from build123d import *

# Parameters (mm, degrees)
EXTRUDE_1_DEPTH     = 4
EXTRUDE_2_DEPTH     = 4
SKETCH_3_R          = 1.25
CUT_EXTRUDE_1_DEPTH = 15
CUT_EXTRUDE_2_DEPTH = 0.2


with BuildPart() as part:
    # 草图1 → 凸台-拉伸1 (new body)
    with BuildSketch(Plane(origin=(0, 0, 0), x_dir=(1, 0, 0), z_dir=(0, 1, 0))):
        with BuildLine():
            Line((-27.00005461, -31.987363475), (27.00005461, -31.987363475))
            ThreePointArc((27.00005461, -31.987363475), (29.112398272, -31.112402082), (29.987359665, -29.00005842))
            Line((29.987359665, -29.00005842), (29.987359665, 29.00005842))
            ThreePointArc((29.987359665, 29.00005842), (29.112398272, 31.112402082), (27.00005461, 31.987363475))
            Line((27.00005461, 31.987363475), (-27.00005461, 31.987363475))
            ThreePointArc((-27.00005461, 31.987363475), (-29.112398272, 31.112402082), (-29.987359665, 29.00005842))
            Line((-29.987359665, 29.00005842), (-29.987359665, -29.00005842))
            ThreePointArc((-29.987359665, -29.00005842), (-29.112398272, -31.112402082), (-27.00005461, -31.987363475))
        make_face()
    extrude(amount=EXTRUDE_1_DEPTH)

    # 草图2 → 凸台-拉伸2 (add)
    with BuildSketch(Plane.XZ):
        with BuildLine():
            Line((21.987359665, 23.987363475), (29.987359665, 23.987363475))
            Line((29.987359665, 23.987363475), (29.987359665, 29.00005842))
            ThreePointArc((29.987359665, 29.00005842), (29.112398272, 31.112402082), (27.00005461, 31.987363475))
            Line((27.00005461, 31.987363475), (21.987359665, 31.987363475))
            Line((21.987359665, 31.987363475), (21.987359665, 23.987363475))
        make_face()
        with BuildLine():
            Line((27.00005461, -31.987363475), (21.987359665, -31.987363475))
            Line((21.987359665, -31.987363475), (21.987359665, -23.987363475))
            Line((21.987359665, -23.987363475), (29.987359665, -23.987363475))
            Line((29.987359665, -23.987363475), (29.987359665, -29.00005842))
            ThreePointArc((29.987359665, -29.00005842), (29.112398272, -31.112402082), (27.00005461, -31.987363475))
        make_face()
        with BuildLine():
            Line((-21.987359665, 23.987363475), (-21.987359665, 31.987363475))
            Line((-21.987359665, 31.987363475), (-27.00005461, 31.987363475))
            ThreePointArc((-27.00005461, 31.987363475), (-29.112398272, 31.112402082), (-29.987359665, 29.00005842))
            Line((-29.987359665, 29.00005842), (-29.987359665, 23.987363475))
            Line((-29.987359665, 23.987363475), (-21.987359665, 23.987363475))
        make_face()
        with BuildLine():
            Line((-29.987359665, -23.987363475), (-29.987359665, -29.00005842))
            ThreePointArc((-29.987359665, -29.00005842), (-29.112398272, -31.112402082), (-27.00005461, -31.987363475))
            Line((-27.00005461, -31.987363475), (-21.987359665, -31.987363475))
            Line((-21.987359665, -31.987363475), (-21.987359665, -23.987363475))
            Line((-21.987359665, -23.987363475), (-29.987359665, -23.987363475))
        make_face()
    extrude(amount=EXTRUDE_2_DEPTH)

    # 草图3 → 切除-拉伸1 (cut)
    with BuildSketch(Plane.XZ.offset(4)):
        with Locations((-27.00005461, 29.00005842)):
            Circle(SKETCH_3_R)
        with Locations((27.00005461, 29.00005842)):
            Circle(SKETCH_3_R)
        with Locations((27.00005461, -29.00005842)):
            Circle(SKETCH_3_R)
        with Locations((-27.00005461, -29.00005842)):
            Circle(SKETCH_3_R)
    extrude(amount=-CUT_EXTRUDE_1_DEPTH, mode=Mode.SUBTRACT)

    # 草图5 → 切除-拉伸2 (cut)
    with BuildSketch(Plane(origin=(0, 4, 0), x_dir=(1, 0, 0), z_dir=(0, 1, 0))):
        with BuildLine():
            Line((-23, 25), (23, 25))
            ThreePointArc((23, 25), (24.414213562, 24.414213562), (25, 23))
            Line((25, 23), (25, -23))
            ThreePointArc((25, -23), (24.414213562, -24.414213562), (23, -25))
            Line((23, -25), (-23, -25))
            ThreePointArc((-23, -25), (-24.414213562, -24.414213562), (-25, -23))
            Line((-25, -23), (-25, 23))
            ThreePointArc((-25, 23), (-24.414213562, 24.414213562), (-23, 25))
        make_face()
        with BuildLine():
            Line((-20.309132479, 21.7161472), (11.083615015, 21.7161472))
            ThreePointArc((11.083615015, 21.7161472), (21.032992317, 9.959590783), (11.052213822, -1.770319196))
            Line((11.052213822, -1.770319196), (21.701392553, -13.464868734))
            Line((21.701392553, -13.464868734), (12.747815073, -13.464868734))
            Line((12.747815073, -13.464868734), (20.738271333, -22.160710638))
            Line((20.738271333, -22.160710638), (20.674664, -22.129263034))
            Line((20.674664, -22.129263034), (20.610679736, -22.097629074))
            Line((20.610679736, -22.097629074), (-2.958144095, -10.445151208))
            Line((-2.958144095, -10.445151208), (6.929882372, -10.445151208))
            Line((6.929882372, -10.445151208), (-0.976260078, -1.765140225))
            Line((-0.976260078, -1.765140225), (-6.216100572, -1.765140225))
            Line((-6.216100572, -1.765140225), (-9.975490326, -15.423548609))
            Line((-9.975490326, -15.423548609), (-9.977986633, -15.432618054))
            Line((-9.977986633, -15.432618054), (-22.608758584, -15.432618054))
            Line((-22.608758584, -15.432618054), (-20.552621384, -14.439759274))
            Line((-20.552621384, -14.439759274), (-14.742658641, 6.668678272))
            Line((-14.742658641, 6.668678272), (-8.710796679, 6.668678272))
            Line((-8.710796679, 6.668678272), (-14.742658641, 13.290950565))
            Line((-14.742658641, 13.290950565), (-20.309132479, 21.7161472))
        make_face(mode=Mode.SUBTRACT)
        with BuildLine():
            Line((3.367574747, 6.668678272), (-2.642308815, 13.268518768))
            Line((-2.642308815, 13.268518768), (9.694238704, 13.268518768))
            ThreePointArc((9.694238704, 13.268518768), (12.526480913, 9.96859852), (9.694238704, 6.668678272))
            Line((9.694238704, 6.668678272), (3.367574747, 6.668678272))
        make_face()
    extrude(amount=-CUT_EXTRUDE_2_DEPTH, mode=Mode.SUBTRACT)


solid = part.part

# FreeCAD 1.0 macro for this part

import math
import FreeCAD as App
import Part
import Sketcher
from FreeCAD import Vector

doc = App.newDocument("Part")
body = doc.addObject("PartDesign::Body", "Body")

sketch1 = doc.addObject("Sketcher::SketchObject", "Sketch")
body.addObject(sketch1)
sketch1.AttachmentSupport = (doc.XZ_Plane, [""])
sketch1.MapMode = "FlatFace"
sketch1.addGeometry([
    Part.LineSegment(Vector(-27.000055, 31.987363, 0), Vector(27.000055, 31.987363, 0)),
    Part.ArcOfCircle(Part.Circle(Vector(27.000055, 29.000058, 0), Vector(0, 0, 1), 2.987305), math.radians(0), math.radians(90)),
    Part.LineSegment(Vector(29.98736, 29.000058, 0), Vector(29.98736, -29.000058, 0)),
    Part.ArcOfCircle(Part.Circle(Vector(27.000055, -29.000058, 0), Vector(0, 0, 1), 2.987305), math.radians(-90), math.radians(0)),
    Part.LineSegment(Vector(27.000055, -31.987363, 0), Vector(-27.000055, -31.987363, 0)),
    Part.ArcOfCircle(Part.Circle(Vector(-27.000055, -29.000058, 0), Vector(0, 0, 1), 2.987305), math.radians(180), math.radians(270)),
    Part.LineSegment(Vector(-29.98736, -29.000058, 0), Vector(-29.98736, 29.000058, 0)),
    Part.ArcOfCircle(Part.Circle(Vector(-27.000055, 29.000058, 0), Vector(0, 0, 1), 2.987305), math.radians(90), math.radians(180)),
], False)
sketch1.addConstraint([
    Sketcher.Constraint("Tangent", 0, 2, 1, 2),
    Sketcher.Constraint("Tangent", 1, 1, 2, 1),
    Sketcher.Constraint("Tangent", 2, 2, 3, 2),
    Sketcher.Constraint("Tangent", 3, 1, 4, 1),
    Sketcher.Constraint("Tangent", 4, 2, 5, 2),
    Sketcher.Constraint("Tangent", 5, 1, 6, 1),
    Sketcher.Constraint("Tangent", 6, 2, 7, 2),
    Sketcher.Constraint("Tangent", 7, 1, 0, 1),
    Sketcher.Constraint("Horizontal", 0),
    Sketcher.Constraint("Vertical", 2),
    Sketcher.Constraint("Horizontal", 4),
    Sketcher.Constraint("Vertical", 6),
    Sketcher.Constraint("Equal", 1, 3),
    Sketcher.Constraint("Equal", 3, 5),
    Sketcher.Constraint("Equal", 5, 7),
    Sketcher.Constraint("Symmetric", 1, 3, 5, 3, -1, 1),
    Sketcher.Constraint("Radius", 1, 2.987305),
    Sketcher.Constraint("DistanceX", 0, 1, 0, 2, 54.000109),
    Sketcher.Constraint("DistanceY", 2, 2, 2, 1, 58.000117),
])
pad1 = doc.addObject("PartDesign::Pad", "Pad")
body.addObject(pad1)
pad1.Profile = sketch1
pad1.Length = 4
pad1.Reversed = True

sketch2 = doc.addObject("Sketcher::SketchObject", "Sketch001")
body.addObject(sketch2)
sketch2.AttachmentSupport = (doc.XZ_Plane, [""])
sketch2.MapMode = "FlatFace"
sketch2.addGeometry([
    Part.LineSegment(Vector(21.98736, 23.987363, 0), Vector(29.98736, 23.987363, 0)),
    Part.LineSegment(Vector(29.98736, 23.987363, 0), Vector(29.98736, 29.000058, 0)),
    Part.ArcOfCircle(Part.Circle(Vector(27.000055, 29.000058, 0), Vector(0, 0, 1), 2.987305), math.radians(0), math.radians(90)),
    Part.LineSegment(Vector(27.000055, 31.987363, 0), Vector(21.98736, 31.987363, 0)),
    Part.LineSegment(Vector(21.98736, 31.987363, 0), Vector(21.98736, 23.987363, 0)),
    Part.LineSegment(Vector(21.98736, -31.987363, 0), Vector(27.000055, -31.987363, 0)),
    Part.ArcOfCircle(Part.Circle(Vector(27.000055, -29.000058, 0), Vector(0, 0, 1), 2.987305), math.radians(-90), math.radians(0)),
    Part.LineSegment(Vector(29.98736, -29.000058, 0), Vector(29.98736, -23.987363, 0)),
    Part.LineSegment(Vector(29.98736, -23.987363, 0), Vector(21.98736, -23.987363, 0)),
    Part.LineSegment(Vector(21.98736, -23.987363, 0), Vector(21.98736, -31.987363, 0)),
    Part.LineSegment(Vector(-21.98736, 23.987363, 0), Vector(-21.98736, 31.987363, 0)),
    Part.LineSegment(Vector(-21.98736, 31.987363, 0), Vector(-27.000055, 31.987363, 0)),
    Part.ArcOfCircle(Part.Circle(Vector(-27.000055, 29.000058, 0), Vector(0, 0, 1), 2.987305), math.radians(90), math.radians(180)),
    Part.LineSegment(Vector(-29.98736, 29.000058, 0), Vector(-29.98736, 23.987363, 0)),
    Part.LineSegment(Vector(-29.98736, 23.987363, 0), Vector(-21.98736, 23.987363, 0)),
    Part.LineSegment(Vector(-29.98736, -23.987363, 0), Vector(-29.98736, -29.000058, 0)),
    Part.ArcOfCircle(Part.Circle(Vector(-27.000055, -29.000058, 0), Vector(0, 0, 1), 2.987305), math.radians(180), math.radians(270)),
    Part.LineSegment(Vector(-27.000055, -31.987363, 0), Vector(-21.98736, -31.987363, 0)),
    Part.LineSegment(Vector(-21.98736, -31.987363, 0), Vector(-21.98736, -23.987363, 0)),
    Part.LineSegment(Vector(-21.98736, -23.987363, 0), Vector(-29.98736, -23.987363, 0)),
], False)
sketch2.addConstraint([
    Sketcher.Constraint("Coincident", 0, 2, 1, 1),
    Sketcher.Constraint("Tangent", 1, 2, 2, 1),
    Sketcher.Constraint("Tangent", 2, 2, 3, 1),
    Sketcher.Constraint("Coincident", 3, 2, 4, 1),
    Sketcher.Constraint("Coincident", 4, 2, 0, 1),
    Sketcher.Constraint("Tangent", 5, 2, 6, 1),
    Sketcher.Constraint("Tangent", 6, 2, 7, 1),
    Sketcher.Constraint("Coincident", 7, 2, 8, 1),
    Sketcher.Constraint("Coincident", 8, 2, 9, 1),
    Sketcher.Constraint("Coincident", 9, 2, 5, 1),
    Sketcher.Constraint("Coincident", 10, 2, 11, 1),
    Sketcher.Constraint("Tangent", 11, 2, 12, 1),
    Sketcher.Constraint("Tangent", 12, 2, 13, 1),
    Sketcher.Constraint("Coincident", 13, 2, 14, 1),
    Sketcher.Constraint("Coincident", 14, 2, 10, 1),
    Sketcher.Constraint("Tangent", 15, 2, 16, 1),
    Sketcher.Constraint("Tangent", 16, 2, 17, 1),
    Sketcher.Constraint("Coincident", 17, 2, 18, 1),
    Sketcher.Constraint("Coincident", 18, 2, 19, 1),
    Sketcher.Constraint("Coincident", 19, 2, 15, 1),
    Sketcher.Constraint("Horizontal", 0),
    Sketcher.Constraint("Vertical", 1),
    Sketcher.Constraint("Horizontal", 3),
    Sketcher.Constraint("Vertical", 4),
    Sketcher.Constraint("Horizontal", 5),
    Sketcher.Constraint("Vertical", 7),
    Sketcher.Constraint("Horizontal", 8),
    Sketcher.Constraint("Vertical", 9),
    Sketcher.Constraint("Vertical", 10),
    Sketcher.Constraint("Horizontal", 11),
    Sketcher.Constraint("Vertical", 13),
    Sketcher.Constraint("Horizontal", 14),
    Sketcher.Constraint("Vertical", 15),
    Sketcher.Constraint("Horizontal", 17),
    Sketcher.Constraint("Vertical", 18),
    Sketcher.Constraint("Horizontal", 19),
    Sketcher.Constraint("Equal", 2, 6),
    Sketcher.Constraint("Equal", 6, 12),
    Sketcher.Constraint("Equal", 12, 16),
    Sketcher.Constraint("Symmetric", 6, 3, 12, 3, -1, 1),
    Sketcher.Constraint("Symmetric", 2, 3, 16, 3, -1, 1),
    Sketcher.Constraint("Symmetric", 8, 2, 14, 2, -1, 1),
    Sketcher.Constraint("Symmetric", 4, 2, 18, 2, -1, 1),
    Sketcher.Constraint("Symmetric", 2, 3, 12, 3, -2),
    Sketcher.Constraint("Symmetric", 4, 2, 14, 2, -2),
    Sketcher.Constraint("Equal", 17, 1),
    Sketcher.Constraint("DistanceX", 0, 1, 0, 2, 8.0),
    Sketcher.Constraint("Radius", 2, 2.987305),
    Sketcher.Constraint("DistanceY", -1, 1, 2, 3, 29.000058),
    Sketcher.Constraint("DistanceX", -1, 1, 0, 2, 29.98736),
])
pad2 = doc.addObject("PartDesign::Pad", "Pad001")
body.addObject(pad2)
pad2.Profile = sketch2
pad2.Length = 4

sketch3 = doc.addObject("Sketcher::SketchObject", "Sketch002")
body.addObject(sketch3)
sketch3.AttachmentSupport = (doc.XZ_Plane, [""])
sketch3.MapMode = "FlatFace"
sketch3.AttachmentOffset = App.Placement(Vector(0, 0, 4), App.Rotation())
sketch3.addGeometry([
    Part.Circle(Vector(-27.000055, 29.000058, 0), Vector(0, 0, 1), 1.25),
    Part.Circle(Vector(27.000055, 29.000058, 0), Vector(0, 0, 1), 1.25),
    Part.Circle(Vector(27.000055, -29.000058, 0), Vector(0, 0, 1), 1.25),
    Part.Circle(Vector(-27.000055, -29.000058, 0), Vector(0, 0, 1), 1.25),
], False)
sketch3.addConstraint([
    Sketcher.Constraint("Equal", 0, 1),
    Sketcher.Constraint("Equal", 1, 2),
    Sketcher.Constraint("Equal", 2, 3),
    Sketcher.Constraint("Symmetric", 0, 3, 2, 3, -1, 1),
    Sketcher.Constraint("Symmetric", 1, 3, 3, 3, -1, 1),
    Sketcher.Constraint("Symmetric", 0, 3, 1, 3, -2),
    Sketcher.Constraint("Diameter", 0, 2.5),
    Sketcher.Constraint("DistanceY", -1, 1, 0, 3, 29.000058),
    Sketcher.Constraint("DistanceX", 0, 3, 1, 3, 54.000109),
])
pocket1 = doc.addObject("PartDesign::Pocket", "Pocket")
body.addObject(pocket1)
pocket1.Profile = sketch3
pocket1.Length = 15

sketch4 = doc.addObject("Sketcher::SketchObject", "Sketch003")
body.addObject(sketch4)
sketch4.AttachmentSupport = (doc.XZ_Plane, [""])
sketch4.MapMode = "FlatFace"
sketch4.AttachmentOffset = App.Placement(Vector(0, 0, -4), App.Rotation())
sketch4.addGeometry([
    Part.LineSegment(Vector(23, -25, 0), Vector(-23, -25, 0)),
    Part.ArcOfCircle(Part.Circle(Vector(-23, -23, 0), Vector(0, 0, 1), 2), math.radians(-180), math.radians(-90)),
    Part.LineSegment(Vector(-25, -23, 0), Vector(-25, 23, 0)),
    Part.ArcOfCircle(Part.Circle(Vector(-23, 23, 0), Vector(0, 0, 1), 2), math.radians(90), math.radians(180)),
    Part.LineSegment(Vector(-23, 25, 0), Vector(23, 25, 0)),
    Part.ArcOfCircle(Part.Circle(Vector(23, 23, 0), Vector(0, 0, 1), 2), math.radians(0), math.radians(90)),
    Part.LineSegment(Vector(25, 23, 0), Vector(25, -23, 0)),
    Part.ArcOfCircle(Part.Circle(Vector(23, -23, 0), Vector(0, 0, 1), 2), math.radians(-90), math.radians(0)),
    Part.LineSegment(Vector(-20.309132, -21.716147, 0), Vector(11.083615, -21.716147, 0)),
    Part.ArcOfCircle(Part.Circle(Vector(9.131113, -9.975503, 0), Vector(0, 0, 1), 11.90189), math.radians(-80.557964), math.radians(80.711172)),
    Part.LineSegment(Vector(11.052214, 1.770319, 0), Vector(21.701393, 13.464869, 0)),
    Part.LineSegment(Vector(21.701393, 13.464869, 0), Vector(12.747815, 13.464869, 0)),
    Part.LineSegment(Vector(12.747815, 13.464869, 0), Vector(20.738271, 22.160711, 0)),
    Part.LineSegment(Vector(20.738271, 22.160711, 0), Vector(20.674664, 22.129263, 0)),
    Part.LineSegment(Vector(20.674664, 22.129263, 0), Vector(20.61068, 22.097629, 0)),
    Part.LineSegment(Vector(20.61068, 22.097629, 0), Vector(-2.958144, 10.445151, 0)),
    Part.LineSegment(Vector(-2.958144, 10.445151, 0), Vector(6.929882, 10.445151, 0)),
    Part.LineSegment(Vector(6.929882, 10.445151, 0), Vector(-0.97626, 1.76514, 0)),
    Part.LineSegment(Vector(-0.97626, 1.76514, 0), Vector(-6.216101, 1.76514, 0)),
    Part.LineSegment(Vector(-6.216101, 1.76514, 0), Vector(-9.97549, 15.423549, 0)),
    Part.LineSegment(Vector(-9.97549, 15.423549, 0), Vector(-9.977987, 15.432618, 0)),
    Part.LineSegment(Vector(-9.977987, 15.432618, 0), Vector(-22.608759, 15.432618, 0)),
    Part.LineSegment(Vector(-22.608759, 15.432618, 0), Vector(-20.552621, 14.439759, 0)),
    Part.LineSegment(Vector(-20.552621, 14.439759, 0), Vector(-14.742659, -6.668678, 0)),
    Part.LineSegment(Vector(-14.742659, -6.668678, 0), Vector(-8.710797, -6.668678, 0)),
    Part.LineSegment(Vector(-8.710797, -6.668678, 0), Vector(-14.742659, -13.290951, 0)),
    Part.LineSegment(Vector(-14.742659, -13.290951, 0), Vector(-20.309132, -21.716147, 0)),
    Part.LineSegment(Vector(-2.642309, -13.268519, 0), Vector(3.367575, -6.668678, 0)),
    Part.LineSegment(Vector(3.367575, -6.668678, 0), Vector(9.694239, -6.668678, 0)),
    Part.ArcOfCircle(Part.Circle(Vector(9.187948, -9.968599, 0), Vector(0, 0, 1), 3.338533), math.radians(-81.277398), math.radians(81.277398)),
    Part.LineSegment(Vector(9.694239, -13.268519, 0), Vector(-2.642309, -13.268519, 0)),
], False)
sketch4.addConstraint([
    Sketcher.Constraint("Tangent", 0, 2, 1, 2),
    Sketcher.Constraint("Tangent", 1, 1, 2, 1),
    Sketcher.Constraint("Tangent", 2, 2, 3, 2),
    Sketcher.Constraint("Tangent", 3, 1, 4, 1),
    Sketcher.Constraint("Tangent", 4, 2, 5, 2),
    Sketcher.Constraint("Tangent", 5, 1, 6, 1),
    Sketcher.Constraint("Tangent", 6, 2, 7, 2),
    Sketcher.Constraint("Tangent", 7, 1, 0, 1),
    Sketcher.Constraint("Coincident", 8, 2, 9, 1),
    Sketcher.Constraint("Coincident", 9, 2, 10, 1),
    Sketcher.Constraint("Coincident", 10, 2, 11, 1),
    Sketcher.Constraint("Coincident", 11, 2, 12, 1),
    Sketcher.Constraint("Coincident", 12, 2, 13, 1),
    Sketcher.Constraint("Coincident", 13, 2, 14, 1),
    Sketcher.Constraint("Coincident", 14, 2, 15, 1),
    Sketcher.Constraint("Coincident", 15, 2, 16, 1),
    Sketcher.Constraint("Coincident", 16, 2, 17, 1),
    Sketcher.Constraint("Coincident", 17, 2, 18, 1),
    Sketcher.Constraint("Coincident", 18, 2, 19, 1),
    Sketcher.Constraint("Coincident", 19, 2, 20, 1),
    Sketcher.Constraint("Coincident", 20, 2, 21, 1),
    Sketcher.Constraint("Coincident", 21, 2, 22, 1),
    Sketcher.Constraint("Coincident", 22, 2, 23, 1),
    Sketcher.Constraint("Coincident", 23, 2, 24, 1),
    Sketcher.Constraint("Coincident", 24, 2, 25, 1),
    Sketcher.Constraint("Coincident", 25, 2, 26, 1),
    Sketcher.Constraint("Coincident", 26, 2, 8, 1),
    Sketcher.Constraint("Coincident", 27, 2, 28, 1),
    Sketcher.Constraint("Coincident", 28, 2, 29, 2),
    Sketcher.Constraint("Coincident", 29, 1, 30, 1),
    Sketcher.Constraint("Coincident", 30, 2, 27, 1),
    Sketcher.Constraint("Horizontal", 0),
    Sketcher.Constraint("Vertical", 2),
    Sketcher.Constraint("Horizontal", 4),
    Sketcher.Constraint("Vertical", 6),
    Sketcher.Constraint("Horizontal", 8),
    Sketcher.Constraint("Horizontal", 11),
    Sketcher.Constraint("Horizontal", 16),
    Sketcher.Constraint("Horizontal", 18),
    Sketcher.Constraint("Horizontal", 21),
    Sketcher.Constraint("Horizontal", 24),
    Sketcher.Constraint("Horizontal", 28),
    Sketcher.Constraint("Horizontal", 30),
    Sketcher.Constraint("Equal", 1, 3),
    Sketcher.Constraint("Equal", 3, 5),
    Sketcher.Constraint("Equal", 5, 7),
    Sketcher.Constraint("Symmetric", 1, 3, 5, 3, -1, 1),
    Sketcher.Constraint("Parallel", 13, 14),
    Sketcher.Constraint("Parallel", 14, 15),
    Sketcher.Constraint("Parallel", 19, 20),
    Sketcher.Constraint("Parallel", 19, 23),
    Sketcher.Constraint("Parallel", 17, 25),
    Sketcher.Constraint("Parallel", 10, 27),
    Sketcher.Constraint("Horizontal", 24, 2, 27, 2),
    Sketcher.Constraint("Vertical", 23, 2, 25, 2),
    Sketcher.Constraint("Vertical", 28, 2, 29, 1),
    Sketcher.Constraint("Equal", 4, 2),
    Sketcher.Constraint("Radius", 1, 2.0),
    Sketcher.Constraint("DistanceX", 0, 2, 0, 1, 46.0),
    Sketcher.Constraint("Radius", 9, 11.90189),
    Sketcher.Constraint("Distance", 26, 10.097998),
    Sketcher.Constraint("Radius", 29, 3.338533),
    Sketcher.Constraint("DistanceX", 18, 2, 18, 1, 5.23984),
    Sketcher.Constraint("DistanceX", 21, 2, 21, 1, 12.630772),
    Sketcher.Constraint("DistanceX", 24, 1, 24, 2, 6.031862),
    Sketcher.Constraint("DistanceY", 29, 3, -1, 1, 9.968599),
    Sketcher.Constraint("DistanceX", 18, 2, -1, 1, 6.216101),
    Sketcher.Constraint("DistanceX", 9, 3, 8, 2, 1.952502),
    Sketcher.Constraint("DistanceX", 9, 3, 9, 2, 1.921101),
    Sketcher.Constraint("DistanceX", 9, 2, 11, 2, 1.695601),
    Sketcher.Constraint("DistanceX", 23, 2, 17, 2, 13.766399),
    Sketcher.Constraint("DistanceX", 17, 2, 28, 2, 10.670499),
    Sketcher.Constraint("Distance", 15, 26.292008),
    Sketcher.Constraint("Distance", 17, 11.74094),
    Sketcher.Constraint("Distance", 23, 21.893419),
    Sketcher.Constraint("Distance", 25, 8.957558),
    Sketcher.Constraint("DistanceX", 8, 1, 8, 2, 31.392747),
    Sketcher.Constraint("DistanceX", 11, 2, 11, 1, 8.953577),
    Sketcher.Constraint("DistanceX", 16, 1, 16, 2, 9.888026),
    Sketcher.Constraint("DistanceX", 28, 1, 28, 2, 6.326664),
    Sketcher.Constraint("DistanceX", 30, 2, 30, 1, 12.336548),
    Sketcher.Constraint("DistanceY", -1, 1, 9, 2, 1.770319),
    Sketcher.Constraint("DistanceY", -1, 1, 10, 2, 13.464869),
    Sketcher.Constraint("DistanceX", -1, 1, 12, 2, 20.738271),
    Sketcher.Constraint("DistanceY", -1, 1, 12, 2, 22.160711),
    Sketcher.Constraint("DistanceX", -1, 1, 14, 2, 20.61068),
    Sketcher.Constraint("DistanceX", 19, 2, -1, 1, 9.97549),
    Sketcher.Constraint("DistanceY", -1, 1, 19, 2, 15.423549),
    Sketcher.Constraint("DistanceY", -1, 1, 20, 2, 15.432618),
    Sketcher.Constraint("DistanceX", 13, 2, 10, 2, 1.026729),
])
pocket2 = doc.addObject("PartDesign::Pocket", "Pocket001")
body.addObject(pocket2)
pocket2.Profile = sketch4
pocket2.Length = 0.2
pocket2.Reversed = True

doc.recompute()
